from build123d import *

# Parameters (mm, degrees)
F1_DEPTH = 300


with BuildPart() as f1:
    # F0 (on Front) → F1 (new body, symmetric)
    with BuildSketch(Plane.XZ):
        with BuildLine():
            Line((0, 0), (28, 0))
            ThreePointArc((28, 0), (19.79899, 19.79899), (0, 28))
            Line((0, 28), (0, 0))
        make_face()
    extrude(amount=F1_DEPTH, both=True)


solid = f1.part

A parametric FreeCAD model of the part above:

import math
import FreeCAD as App
import Part
import Sketcher
from FreeCAD import Vector
Q = App.Units.Quantity

doc = App.newDocument("Part")
body = doc.addObject("PartDesign::Body", "Body")

sketch1 = body.newObject("Sketcher::SketchObject", "Sketch")
sketch1.AttachmentSupport = (doc.getObject("XZ_Plane"), [""])
sketch1.MapMode = "FlatFace"
sketch1.addGeometry(Part.LineSegment(Vector(0, 0, 0), Vector(28, 0, 0)), False)
sketch1.addGeometry(Part.ArcOfCircle(Part.Circle(Vector(0, 0, 0), Vector(0, 0, 1), 28), math.radians(0), math.radians(90)), False)
sketch1.addGeometry(Part.LineSegment(Vector(0, 28, 0), Vector(0, 0, 0)), False)
sketch1.addConstraint(Sketcher.Constraint("Coincident", 0, 2, 1, 1))
sketch1.addConstraint(Sketcher.Constraint("Coincident", 1, 2, 2, 1))
sketch1.addConstraint(Sketcher.Constraint("Coincident", 2, 2, 0, 1))
sketch1.addConstraint(Sketcher.Constraint("Horizontal", 0))
sketch1.addConstraint(Sketcher.Constraint("Vertical", 2))
sketch1.addConstraint(Sketcher.Constraint("Coincident", 1, 3, -1, 1))
sketch1.addConstraint(Sketcher.Constraint("Coincident", 2, 2, -1, 1))
sketch1.addConstraint(Sketcher.Constraint("Radius", 1, Q("28 mm")))
pad1 = body.newObject("PartDesign::Pad", "Pad")
pad1.Profile = sketch1
pad1.Length = 600
pad1.Midplane = True

doc.recompute()
